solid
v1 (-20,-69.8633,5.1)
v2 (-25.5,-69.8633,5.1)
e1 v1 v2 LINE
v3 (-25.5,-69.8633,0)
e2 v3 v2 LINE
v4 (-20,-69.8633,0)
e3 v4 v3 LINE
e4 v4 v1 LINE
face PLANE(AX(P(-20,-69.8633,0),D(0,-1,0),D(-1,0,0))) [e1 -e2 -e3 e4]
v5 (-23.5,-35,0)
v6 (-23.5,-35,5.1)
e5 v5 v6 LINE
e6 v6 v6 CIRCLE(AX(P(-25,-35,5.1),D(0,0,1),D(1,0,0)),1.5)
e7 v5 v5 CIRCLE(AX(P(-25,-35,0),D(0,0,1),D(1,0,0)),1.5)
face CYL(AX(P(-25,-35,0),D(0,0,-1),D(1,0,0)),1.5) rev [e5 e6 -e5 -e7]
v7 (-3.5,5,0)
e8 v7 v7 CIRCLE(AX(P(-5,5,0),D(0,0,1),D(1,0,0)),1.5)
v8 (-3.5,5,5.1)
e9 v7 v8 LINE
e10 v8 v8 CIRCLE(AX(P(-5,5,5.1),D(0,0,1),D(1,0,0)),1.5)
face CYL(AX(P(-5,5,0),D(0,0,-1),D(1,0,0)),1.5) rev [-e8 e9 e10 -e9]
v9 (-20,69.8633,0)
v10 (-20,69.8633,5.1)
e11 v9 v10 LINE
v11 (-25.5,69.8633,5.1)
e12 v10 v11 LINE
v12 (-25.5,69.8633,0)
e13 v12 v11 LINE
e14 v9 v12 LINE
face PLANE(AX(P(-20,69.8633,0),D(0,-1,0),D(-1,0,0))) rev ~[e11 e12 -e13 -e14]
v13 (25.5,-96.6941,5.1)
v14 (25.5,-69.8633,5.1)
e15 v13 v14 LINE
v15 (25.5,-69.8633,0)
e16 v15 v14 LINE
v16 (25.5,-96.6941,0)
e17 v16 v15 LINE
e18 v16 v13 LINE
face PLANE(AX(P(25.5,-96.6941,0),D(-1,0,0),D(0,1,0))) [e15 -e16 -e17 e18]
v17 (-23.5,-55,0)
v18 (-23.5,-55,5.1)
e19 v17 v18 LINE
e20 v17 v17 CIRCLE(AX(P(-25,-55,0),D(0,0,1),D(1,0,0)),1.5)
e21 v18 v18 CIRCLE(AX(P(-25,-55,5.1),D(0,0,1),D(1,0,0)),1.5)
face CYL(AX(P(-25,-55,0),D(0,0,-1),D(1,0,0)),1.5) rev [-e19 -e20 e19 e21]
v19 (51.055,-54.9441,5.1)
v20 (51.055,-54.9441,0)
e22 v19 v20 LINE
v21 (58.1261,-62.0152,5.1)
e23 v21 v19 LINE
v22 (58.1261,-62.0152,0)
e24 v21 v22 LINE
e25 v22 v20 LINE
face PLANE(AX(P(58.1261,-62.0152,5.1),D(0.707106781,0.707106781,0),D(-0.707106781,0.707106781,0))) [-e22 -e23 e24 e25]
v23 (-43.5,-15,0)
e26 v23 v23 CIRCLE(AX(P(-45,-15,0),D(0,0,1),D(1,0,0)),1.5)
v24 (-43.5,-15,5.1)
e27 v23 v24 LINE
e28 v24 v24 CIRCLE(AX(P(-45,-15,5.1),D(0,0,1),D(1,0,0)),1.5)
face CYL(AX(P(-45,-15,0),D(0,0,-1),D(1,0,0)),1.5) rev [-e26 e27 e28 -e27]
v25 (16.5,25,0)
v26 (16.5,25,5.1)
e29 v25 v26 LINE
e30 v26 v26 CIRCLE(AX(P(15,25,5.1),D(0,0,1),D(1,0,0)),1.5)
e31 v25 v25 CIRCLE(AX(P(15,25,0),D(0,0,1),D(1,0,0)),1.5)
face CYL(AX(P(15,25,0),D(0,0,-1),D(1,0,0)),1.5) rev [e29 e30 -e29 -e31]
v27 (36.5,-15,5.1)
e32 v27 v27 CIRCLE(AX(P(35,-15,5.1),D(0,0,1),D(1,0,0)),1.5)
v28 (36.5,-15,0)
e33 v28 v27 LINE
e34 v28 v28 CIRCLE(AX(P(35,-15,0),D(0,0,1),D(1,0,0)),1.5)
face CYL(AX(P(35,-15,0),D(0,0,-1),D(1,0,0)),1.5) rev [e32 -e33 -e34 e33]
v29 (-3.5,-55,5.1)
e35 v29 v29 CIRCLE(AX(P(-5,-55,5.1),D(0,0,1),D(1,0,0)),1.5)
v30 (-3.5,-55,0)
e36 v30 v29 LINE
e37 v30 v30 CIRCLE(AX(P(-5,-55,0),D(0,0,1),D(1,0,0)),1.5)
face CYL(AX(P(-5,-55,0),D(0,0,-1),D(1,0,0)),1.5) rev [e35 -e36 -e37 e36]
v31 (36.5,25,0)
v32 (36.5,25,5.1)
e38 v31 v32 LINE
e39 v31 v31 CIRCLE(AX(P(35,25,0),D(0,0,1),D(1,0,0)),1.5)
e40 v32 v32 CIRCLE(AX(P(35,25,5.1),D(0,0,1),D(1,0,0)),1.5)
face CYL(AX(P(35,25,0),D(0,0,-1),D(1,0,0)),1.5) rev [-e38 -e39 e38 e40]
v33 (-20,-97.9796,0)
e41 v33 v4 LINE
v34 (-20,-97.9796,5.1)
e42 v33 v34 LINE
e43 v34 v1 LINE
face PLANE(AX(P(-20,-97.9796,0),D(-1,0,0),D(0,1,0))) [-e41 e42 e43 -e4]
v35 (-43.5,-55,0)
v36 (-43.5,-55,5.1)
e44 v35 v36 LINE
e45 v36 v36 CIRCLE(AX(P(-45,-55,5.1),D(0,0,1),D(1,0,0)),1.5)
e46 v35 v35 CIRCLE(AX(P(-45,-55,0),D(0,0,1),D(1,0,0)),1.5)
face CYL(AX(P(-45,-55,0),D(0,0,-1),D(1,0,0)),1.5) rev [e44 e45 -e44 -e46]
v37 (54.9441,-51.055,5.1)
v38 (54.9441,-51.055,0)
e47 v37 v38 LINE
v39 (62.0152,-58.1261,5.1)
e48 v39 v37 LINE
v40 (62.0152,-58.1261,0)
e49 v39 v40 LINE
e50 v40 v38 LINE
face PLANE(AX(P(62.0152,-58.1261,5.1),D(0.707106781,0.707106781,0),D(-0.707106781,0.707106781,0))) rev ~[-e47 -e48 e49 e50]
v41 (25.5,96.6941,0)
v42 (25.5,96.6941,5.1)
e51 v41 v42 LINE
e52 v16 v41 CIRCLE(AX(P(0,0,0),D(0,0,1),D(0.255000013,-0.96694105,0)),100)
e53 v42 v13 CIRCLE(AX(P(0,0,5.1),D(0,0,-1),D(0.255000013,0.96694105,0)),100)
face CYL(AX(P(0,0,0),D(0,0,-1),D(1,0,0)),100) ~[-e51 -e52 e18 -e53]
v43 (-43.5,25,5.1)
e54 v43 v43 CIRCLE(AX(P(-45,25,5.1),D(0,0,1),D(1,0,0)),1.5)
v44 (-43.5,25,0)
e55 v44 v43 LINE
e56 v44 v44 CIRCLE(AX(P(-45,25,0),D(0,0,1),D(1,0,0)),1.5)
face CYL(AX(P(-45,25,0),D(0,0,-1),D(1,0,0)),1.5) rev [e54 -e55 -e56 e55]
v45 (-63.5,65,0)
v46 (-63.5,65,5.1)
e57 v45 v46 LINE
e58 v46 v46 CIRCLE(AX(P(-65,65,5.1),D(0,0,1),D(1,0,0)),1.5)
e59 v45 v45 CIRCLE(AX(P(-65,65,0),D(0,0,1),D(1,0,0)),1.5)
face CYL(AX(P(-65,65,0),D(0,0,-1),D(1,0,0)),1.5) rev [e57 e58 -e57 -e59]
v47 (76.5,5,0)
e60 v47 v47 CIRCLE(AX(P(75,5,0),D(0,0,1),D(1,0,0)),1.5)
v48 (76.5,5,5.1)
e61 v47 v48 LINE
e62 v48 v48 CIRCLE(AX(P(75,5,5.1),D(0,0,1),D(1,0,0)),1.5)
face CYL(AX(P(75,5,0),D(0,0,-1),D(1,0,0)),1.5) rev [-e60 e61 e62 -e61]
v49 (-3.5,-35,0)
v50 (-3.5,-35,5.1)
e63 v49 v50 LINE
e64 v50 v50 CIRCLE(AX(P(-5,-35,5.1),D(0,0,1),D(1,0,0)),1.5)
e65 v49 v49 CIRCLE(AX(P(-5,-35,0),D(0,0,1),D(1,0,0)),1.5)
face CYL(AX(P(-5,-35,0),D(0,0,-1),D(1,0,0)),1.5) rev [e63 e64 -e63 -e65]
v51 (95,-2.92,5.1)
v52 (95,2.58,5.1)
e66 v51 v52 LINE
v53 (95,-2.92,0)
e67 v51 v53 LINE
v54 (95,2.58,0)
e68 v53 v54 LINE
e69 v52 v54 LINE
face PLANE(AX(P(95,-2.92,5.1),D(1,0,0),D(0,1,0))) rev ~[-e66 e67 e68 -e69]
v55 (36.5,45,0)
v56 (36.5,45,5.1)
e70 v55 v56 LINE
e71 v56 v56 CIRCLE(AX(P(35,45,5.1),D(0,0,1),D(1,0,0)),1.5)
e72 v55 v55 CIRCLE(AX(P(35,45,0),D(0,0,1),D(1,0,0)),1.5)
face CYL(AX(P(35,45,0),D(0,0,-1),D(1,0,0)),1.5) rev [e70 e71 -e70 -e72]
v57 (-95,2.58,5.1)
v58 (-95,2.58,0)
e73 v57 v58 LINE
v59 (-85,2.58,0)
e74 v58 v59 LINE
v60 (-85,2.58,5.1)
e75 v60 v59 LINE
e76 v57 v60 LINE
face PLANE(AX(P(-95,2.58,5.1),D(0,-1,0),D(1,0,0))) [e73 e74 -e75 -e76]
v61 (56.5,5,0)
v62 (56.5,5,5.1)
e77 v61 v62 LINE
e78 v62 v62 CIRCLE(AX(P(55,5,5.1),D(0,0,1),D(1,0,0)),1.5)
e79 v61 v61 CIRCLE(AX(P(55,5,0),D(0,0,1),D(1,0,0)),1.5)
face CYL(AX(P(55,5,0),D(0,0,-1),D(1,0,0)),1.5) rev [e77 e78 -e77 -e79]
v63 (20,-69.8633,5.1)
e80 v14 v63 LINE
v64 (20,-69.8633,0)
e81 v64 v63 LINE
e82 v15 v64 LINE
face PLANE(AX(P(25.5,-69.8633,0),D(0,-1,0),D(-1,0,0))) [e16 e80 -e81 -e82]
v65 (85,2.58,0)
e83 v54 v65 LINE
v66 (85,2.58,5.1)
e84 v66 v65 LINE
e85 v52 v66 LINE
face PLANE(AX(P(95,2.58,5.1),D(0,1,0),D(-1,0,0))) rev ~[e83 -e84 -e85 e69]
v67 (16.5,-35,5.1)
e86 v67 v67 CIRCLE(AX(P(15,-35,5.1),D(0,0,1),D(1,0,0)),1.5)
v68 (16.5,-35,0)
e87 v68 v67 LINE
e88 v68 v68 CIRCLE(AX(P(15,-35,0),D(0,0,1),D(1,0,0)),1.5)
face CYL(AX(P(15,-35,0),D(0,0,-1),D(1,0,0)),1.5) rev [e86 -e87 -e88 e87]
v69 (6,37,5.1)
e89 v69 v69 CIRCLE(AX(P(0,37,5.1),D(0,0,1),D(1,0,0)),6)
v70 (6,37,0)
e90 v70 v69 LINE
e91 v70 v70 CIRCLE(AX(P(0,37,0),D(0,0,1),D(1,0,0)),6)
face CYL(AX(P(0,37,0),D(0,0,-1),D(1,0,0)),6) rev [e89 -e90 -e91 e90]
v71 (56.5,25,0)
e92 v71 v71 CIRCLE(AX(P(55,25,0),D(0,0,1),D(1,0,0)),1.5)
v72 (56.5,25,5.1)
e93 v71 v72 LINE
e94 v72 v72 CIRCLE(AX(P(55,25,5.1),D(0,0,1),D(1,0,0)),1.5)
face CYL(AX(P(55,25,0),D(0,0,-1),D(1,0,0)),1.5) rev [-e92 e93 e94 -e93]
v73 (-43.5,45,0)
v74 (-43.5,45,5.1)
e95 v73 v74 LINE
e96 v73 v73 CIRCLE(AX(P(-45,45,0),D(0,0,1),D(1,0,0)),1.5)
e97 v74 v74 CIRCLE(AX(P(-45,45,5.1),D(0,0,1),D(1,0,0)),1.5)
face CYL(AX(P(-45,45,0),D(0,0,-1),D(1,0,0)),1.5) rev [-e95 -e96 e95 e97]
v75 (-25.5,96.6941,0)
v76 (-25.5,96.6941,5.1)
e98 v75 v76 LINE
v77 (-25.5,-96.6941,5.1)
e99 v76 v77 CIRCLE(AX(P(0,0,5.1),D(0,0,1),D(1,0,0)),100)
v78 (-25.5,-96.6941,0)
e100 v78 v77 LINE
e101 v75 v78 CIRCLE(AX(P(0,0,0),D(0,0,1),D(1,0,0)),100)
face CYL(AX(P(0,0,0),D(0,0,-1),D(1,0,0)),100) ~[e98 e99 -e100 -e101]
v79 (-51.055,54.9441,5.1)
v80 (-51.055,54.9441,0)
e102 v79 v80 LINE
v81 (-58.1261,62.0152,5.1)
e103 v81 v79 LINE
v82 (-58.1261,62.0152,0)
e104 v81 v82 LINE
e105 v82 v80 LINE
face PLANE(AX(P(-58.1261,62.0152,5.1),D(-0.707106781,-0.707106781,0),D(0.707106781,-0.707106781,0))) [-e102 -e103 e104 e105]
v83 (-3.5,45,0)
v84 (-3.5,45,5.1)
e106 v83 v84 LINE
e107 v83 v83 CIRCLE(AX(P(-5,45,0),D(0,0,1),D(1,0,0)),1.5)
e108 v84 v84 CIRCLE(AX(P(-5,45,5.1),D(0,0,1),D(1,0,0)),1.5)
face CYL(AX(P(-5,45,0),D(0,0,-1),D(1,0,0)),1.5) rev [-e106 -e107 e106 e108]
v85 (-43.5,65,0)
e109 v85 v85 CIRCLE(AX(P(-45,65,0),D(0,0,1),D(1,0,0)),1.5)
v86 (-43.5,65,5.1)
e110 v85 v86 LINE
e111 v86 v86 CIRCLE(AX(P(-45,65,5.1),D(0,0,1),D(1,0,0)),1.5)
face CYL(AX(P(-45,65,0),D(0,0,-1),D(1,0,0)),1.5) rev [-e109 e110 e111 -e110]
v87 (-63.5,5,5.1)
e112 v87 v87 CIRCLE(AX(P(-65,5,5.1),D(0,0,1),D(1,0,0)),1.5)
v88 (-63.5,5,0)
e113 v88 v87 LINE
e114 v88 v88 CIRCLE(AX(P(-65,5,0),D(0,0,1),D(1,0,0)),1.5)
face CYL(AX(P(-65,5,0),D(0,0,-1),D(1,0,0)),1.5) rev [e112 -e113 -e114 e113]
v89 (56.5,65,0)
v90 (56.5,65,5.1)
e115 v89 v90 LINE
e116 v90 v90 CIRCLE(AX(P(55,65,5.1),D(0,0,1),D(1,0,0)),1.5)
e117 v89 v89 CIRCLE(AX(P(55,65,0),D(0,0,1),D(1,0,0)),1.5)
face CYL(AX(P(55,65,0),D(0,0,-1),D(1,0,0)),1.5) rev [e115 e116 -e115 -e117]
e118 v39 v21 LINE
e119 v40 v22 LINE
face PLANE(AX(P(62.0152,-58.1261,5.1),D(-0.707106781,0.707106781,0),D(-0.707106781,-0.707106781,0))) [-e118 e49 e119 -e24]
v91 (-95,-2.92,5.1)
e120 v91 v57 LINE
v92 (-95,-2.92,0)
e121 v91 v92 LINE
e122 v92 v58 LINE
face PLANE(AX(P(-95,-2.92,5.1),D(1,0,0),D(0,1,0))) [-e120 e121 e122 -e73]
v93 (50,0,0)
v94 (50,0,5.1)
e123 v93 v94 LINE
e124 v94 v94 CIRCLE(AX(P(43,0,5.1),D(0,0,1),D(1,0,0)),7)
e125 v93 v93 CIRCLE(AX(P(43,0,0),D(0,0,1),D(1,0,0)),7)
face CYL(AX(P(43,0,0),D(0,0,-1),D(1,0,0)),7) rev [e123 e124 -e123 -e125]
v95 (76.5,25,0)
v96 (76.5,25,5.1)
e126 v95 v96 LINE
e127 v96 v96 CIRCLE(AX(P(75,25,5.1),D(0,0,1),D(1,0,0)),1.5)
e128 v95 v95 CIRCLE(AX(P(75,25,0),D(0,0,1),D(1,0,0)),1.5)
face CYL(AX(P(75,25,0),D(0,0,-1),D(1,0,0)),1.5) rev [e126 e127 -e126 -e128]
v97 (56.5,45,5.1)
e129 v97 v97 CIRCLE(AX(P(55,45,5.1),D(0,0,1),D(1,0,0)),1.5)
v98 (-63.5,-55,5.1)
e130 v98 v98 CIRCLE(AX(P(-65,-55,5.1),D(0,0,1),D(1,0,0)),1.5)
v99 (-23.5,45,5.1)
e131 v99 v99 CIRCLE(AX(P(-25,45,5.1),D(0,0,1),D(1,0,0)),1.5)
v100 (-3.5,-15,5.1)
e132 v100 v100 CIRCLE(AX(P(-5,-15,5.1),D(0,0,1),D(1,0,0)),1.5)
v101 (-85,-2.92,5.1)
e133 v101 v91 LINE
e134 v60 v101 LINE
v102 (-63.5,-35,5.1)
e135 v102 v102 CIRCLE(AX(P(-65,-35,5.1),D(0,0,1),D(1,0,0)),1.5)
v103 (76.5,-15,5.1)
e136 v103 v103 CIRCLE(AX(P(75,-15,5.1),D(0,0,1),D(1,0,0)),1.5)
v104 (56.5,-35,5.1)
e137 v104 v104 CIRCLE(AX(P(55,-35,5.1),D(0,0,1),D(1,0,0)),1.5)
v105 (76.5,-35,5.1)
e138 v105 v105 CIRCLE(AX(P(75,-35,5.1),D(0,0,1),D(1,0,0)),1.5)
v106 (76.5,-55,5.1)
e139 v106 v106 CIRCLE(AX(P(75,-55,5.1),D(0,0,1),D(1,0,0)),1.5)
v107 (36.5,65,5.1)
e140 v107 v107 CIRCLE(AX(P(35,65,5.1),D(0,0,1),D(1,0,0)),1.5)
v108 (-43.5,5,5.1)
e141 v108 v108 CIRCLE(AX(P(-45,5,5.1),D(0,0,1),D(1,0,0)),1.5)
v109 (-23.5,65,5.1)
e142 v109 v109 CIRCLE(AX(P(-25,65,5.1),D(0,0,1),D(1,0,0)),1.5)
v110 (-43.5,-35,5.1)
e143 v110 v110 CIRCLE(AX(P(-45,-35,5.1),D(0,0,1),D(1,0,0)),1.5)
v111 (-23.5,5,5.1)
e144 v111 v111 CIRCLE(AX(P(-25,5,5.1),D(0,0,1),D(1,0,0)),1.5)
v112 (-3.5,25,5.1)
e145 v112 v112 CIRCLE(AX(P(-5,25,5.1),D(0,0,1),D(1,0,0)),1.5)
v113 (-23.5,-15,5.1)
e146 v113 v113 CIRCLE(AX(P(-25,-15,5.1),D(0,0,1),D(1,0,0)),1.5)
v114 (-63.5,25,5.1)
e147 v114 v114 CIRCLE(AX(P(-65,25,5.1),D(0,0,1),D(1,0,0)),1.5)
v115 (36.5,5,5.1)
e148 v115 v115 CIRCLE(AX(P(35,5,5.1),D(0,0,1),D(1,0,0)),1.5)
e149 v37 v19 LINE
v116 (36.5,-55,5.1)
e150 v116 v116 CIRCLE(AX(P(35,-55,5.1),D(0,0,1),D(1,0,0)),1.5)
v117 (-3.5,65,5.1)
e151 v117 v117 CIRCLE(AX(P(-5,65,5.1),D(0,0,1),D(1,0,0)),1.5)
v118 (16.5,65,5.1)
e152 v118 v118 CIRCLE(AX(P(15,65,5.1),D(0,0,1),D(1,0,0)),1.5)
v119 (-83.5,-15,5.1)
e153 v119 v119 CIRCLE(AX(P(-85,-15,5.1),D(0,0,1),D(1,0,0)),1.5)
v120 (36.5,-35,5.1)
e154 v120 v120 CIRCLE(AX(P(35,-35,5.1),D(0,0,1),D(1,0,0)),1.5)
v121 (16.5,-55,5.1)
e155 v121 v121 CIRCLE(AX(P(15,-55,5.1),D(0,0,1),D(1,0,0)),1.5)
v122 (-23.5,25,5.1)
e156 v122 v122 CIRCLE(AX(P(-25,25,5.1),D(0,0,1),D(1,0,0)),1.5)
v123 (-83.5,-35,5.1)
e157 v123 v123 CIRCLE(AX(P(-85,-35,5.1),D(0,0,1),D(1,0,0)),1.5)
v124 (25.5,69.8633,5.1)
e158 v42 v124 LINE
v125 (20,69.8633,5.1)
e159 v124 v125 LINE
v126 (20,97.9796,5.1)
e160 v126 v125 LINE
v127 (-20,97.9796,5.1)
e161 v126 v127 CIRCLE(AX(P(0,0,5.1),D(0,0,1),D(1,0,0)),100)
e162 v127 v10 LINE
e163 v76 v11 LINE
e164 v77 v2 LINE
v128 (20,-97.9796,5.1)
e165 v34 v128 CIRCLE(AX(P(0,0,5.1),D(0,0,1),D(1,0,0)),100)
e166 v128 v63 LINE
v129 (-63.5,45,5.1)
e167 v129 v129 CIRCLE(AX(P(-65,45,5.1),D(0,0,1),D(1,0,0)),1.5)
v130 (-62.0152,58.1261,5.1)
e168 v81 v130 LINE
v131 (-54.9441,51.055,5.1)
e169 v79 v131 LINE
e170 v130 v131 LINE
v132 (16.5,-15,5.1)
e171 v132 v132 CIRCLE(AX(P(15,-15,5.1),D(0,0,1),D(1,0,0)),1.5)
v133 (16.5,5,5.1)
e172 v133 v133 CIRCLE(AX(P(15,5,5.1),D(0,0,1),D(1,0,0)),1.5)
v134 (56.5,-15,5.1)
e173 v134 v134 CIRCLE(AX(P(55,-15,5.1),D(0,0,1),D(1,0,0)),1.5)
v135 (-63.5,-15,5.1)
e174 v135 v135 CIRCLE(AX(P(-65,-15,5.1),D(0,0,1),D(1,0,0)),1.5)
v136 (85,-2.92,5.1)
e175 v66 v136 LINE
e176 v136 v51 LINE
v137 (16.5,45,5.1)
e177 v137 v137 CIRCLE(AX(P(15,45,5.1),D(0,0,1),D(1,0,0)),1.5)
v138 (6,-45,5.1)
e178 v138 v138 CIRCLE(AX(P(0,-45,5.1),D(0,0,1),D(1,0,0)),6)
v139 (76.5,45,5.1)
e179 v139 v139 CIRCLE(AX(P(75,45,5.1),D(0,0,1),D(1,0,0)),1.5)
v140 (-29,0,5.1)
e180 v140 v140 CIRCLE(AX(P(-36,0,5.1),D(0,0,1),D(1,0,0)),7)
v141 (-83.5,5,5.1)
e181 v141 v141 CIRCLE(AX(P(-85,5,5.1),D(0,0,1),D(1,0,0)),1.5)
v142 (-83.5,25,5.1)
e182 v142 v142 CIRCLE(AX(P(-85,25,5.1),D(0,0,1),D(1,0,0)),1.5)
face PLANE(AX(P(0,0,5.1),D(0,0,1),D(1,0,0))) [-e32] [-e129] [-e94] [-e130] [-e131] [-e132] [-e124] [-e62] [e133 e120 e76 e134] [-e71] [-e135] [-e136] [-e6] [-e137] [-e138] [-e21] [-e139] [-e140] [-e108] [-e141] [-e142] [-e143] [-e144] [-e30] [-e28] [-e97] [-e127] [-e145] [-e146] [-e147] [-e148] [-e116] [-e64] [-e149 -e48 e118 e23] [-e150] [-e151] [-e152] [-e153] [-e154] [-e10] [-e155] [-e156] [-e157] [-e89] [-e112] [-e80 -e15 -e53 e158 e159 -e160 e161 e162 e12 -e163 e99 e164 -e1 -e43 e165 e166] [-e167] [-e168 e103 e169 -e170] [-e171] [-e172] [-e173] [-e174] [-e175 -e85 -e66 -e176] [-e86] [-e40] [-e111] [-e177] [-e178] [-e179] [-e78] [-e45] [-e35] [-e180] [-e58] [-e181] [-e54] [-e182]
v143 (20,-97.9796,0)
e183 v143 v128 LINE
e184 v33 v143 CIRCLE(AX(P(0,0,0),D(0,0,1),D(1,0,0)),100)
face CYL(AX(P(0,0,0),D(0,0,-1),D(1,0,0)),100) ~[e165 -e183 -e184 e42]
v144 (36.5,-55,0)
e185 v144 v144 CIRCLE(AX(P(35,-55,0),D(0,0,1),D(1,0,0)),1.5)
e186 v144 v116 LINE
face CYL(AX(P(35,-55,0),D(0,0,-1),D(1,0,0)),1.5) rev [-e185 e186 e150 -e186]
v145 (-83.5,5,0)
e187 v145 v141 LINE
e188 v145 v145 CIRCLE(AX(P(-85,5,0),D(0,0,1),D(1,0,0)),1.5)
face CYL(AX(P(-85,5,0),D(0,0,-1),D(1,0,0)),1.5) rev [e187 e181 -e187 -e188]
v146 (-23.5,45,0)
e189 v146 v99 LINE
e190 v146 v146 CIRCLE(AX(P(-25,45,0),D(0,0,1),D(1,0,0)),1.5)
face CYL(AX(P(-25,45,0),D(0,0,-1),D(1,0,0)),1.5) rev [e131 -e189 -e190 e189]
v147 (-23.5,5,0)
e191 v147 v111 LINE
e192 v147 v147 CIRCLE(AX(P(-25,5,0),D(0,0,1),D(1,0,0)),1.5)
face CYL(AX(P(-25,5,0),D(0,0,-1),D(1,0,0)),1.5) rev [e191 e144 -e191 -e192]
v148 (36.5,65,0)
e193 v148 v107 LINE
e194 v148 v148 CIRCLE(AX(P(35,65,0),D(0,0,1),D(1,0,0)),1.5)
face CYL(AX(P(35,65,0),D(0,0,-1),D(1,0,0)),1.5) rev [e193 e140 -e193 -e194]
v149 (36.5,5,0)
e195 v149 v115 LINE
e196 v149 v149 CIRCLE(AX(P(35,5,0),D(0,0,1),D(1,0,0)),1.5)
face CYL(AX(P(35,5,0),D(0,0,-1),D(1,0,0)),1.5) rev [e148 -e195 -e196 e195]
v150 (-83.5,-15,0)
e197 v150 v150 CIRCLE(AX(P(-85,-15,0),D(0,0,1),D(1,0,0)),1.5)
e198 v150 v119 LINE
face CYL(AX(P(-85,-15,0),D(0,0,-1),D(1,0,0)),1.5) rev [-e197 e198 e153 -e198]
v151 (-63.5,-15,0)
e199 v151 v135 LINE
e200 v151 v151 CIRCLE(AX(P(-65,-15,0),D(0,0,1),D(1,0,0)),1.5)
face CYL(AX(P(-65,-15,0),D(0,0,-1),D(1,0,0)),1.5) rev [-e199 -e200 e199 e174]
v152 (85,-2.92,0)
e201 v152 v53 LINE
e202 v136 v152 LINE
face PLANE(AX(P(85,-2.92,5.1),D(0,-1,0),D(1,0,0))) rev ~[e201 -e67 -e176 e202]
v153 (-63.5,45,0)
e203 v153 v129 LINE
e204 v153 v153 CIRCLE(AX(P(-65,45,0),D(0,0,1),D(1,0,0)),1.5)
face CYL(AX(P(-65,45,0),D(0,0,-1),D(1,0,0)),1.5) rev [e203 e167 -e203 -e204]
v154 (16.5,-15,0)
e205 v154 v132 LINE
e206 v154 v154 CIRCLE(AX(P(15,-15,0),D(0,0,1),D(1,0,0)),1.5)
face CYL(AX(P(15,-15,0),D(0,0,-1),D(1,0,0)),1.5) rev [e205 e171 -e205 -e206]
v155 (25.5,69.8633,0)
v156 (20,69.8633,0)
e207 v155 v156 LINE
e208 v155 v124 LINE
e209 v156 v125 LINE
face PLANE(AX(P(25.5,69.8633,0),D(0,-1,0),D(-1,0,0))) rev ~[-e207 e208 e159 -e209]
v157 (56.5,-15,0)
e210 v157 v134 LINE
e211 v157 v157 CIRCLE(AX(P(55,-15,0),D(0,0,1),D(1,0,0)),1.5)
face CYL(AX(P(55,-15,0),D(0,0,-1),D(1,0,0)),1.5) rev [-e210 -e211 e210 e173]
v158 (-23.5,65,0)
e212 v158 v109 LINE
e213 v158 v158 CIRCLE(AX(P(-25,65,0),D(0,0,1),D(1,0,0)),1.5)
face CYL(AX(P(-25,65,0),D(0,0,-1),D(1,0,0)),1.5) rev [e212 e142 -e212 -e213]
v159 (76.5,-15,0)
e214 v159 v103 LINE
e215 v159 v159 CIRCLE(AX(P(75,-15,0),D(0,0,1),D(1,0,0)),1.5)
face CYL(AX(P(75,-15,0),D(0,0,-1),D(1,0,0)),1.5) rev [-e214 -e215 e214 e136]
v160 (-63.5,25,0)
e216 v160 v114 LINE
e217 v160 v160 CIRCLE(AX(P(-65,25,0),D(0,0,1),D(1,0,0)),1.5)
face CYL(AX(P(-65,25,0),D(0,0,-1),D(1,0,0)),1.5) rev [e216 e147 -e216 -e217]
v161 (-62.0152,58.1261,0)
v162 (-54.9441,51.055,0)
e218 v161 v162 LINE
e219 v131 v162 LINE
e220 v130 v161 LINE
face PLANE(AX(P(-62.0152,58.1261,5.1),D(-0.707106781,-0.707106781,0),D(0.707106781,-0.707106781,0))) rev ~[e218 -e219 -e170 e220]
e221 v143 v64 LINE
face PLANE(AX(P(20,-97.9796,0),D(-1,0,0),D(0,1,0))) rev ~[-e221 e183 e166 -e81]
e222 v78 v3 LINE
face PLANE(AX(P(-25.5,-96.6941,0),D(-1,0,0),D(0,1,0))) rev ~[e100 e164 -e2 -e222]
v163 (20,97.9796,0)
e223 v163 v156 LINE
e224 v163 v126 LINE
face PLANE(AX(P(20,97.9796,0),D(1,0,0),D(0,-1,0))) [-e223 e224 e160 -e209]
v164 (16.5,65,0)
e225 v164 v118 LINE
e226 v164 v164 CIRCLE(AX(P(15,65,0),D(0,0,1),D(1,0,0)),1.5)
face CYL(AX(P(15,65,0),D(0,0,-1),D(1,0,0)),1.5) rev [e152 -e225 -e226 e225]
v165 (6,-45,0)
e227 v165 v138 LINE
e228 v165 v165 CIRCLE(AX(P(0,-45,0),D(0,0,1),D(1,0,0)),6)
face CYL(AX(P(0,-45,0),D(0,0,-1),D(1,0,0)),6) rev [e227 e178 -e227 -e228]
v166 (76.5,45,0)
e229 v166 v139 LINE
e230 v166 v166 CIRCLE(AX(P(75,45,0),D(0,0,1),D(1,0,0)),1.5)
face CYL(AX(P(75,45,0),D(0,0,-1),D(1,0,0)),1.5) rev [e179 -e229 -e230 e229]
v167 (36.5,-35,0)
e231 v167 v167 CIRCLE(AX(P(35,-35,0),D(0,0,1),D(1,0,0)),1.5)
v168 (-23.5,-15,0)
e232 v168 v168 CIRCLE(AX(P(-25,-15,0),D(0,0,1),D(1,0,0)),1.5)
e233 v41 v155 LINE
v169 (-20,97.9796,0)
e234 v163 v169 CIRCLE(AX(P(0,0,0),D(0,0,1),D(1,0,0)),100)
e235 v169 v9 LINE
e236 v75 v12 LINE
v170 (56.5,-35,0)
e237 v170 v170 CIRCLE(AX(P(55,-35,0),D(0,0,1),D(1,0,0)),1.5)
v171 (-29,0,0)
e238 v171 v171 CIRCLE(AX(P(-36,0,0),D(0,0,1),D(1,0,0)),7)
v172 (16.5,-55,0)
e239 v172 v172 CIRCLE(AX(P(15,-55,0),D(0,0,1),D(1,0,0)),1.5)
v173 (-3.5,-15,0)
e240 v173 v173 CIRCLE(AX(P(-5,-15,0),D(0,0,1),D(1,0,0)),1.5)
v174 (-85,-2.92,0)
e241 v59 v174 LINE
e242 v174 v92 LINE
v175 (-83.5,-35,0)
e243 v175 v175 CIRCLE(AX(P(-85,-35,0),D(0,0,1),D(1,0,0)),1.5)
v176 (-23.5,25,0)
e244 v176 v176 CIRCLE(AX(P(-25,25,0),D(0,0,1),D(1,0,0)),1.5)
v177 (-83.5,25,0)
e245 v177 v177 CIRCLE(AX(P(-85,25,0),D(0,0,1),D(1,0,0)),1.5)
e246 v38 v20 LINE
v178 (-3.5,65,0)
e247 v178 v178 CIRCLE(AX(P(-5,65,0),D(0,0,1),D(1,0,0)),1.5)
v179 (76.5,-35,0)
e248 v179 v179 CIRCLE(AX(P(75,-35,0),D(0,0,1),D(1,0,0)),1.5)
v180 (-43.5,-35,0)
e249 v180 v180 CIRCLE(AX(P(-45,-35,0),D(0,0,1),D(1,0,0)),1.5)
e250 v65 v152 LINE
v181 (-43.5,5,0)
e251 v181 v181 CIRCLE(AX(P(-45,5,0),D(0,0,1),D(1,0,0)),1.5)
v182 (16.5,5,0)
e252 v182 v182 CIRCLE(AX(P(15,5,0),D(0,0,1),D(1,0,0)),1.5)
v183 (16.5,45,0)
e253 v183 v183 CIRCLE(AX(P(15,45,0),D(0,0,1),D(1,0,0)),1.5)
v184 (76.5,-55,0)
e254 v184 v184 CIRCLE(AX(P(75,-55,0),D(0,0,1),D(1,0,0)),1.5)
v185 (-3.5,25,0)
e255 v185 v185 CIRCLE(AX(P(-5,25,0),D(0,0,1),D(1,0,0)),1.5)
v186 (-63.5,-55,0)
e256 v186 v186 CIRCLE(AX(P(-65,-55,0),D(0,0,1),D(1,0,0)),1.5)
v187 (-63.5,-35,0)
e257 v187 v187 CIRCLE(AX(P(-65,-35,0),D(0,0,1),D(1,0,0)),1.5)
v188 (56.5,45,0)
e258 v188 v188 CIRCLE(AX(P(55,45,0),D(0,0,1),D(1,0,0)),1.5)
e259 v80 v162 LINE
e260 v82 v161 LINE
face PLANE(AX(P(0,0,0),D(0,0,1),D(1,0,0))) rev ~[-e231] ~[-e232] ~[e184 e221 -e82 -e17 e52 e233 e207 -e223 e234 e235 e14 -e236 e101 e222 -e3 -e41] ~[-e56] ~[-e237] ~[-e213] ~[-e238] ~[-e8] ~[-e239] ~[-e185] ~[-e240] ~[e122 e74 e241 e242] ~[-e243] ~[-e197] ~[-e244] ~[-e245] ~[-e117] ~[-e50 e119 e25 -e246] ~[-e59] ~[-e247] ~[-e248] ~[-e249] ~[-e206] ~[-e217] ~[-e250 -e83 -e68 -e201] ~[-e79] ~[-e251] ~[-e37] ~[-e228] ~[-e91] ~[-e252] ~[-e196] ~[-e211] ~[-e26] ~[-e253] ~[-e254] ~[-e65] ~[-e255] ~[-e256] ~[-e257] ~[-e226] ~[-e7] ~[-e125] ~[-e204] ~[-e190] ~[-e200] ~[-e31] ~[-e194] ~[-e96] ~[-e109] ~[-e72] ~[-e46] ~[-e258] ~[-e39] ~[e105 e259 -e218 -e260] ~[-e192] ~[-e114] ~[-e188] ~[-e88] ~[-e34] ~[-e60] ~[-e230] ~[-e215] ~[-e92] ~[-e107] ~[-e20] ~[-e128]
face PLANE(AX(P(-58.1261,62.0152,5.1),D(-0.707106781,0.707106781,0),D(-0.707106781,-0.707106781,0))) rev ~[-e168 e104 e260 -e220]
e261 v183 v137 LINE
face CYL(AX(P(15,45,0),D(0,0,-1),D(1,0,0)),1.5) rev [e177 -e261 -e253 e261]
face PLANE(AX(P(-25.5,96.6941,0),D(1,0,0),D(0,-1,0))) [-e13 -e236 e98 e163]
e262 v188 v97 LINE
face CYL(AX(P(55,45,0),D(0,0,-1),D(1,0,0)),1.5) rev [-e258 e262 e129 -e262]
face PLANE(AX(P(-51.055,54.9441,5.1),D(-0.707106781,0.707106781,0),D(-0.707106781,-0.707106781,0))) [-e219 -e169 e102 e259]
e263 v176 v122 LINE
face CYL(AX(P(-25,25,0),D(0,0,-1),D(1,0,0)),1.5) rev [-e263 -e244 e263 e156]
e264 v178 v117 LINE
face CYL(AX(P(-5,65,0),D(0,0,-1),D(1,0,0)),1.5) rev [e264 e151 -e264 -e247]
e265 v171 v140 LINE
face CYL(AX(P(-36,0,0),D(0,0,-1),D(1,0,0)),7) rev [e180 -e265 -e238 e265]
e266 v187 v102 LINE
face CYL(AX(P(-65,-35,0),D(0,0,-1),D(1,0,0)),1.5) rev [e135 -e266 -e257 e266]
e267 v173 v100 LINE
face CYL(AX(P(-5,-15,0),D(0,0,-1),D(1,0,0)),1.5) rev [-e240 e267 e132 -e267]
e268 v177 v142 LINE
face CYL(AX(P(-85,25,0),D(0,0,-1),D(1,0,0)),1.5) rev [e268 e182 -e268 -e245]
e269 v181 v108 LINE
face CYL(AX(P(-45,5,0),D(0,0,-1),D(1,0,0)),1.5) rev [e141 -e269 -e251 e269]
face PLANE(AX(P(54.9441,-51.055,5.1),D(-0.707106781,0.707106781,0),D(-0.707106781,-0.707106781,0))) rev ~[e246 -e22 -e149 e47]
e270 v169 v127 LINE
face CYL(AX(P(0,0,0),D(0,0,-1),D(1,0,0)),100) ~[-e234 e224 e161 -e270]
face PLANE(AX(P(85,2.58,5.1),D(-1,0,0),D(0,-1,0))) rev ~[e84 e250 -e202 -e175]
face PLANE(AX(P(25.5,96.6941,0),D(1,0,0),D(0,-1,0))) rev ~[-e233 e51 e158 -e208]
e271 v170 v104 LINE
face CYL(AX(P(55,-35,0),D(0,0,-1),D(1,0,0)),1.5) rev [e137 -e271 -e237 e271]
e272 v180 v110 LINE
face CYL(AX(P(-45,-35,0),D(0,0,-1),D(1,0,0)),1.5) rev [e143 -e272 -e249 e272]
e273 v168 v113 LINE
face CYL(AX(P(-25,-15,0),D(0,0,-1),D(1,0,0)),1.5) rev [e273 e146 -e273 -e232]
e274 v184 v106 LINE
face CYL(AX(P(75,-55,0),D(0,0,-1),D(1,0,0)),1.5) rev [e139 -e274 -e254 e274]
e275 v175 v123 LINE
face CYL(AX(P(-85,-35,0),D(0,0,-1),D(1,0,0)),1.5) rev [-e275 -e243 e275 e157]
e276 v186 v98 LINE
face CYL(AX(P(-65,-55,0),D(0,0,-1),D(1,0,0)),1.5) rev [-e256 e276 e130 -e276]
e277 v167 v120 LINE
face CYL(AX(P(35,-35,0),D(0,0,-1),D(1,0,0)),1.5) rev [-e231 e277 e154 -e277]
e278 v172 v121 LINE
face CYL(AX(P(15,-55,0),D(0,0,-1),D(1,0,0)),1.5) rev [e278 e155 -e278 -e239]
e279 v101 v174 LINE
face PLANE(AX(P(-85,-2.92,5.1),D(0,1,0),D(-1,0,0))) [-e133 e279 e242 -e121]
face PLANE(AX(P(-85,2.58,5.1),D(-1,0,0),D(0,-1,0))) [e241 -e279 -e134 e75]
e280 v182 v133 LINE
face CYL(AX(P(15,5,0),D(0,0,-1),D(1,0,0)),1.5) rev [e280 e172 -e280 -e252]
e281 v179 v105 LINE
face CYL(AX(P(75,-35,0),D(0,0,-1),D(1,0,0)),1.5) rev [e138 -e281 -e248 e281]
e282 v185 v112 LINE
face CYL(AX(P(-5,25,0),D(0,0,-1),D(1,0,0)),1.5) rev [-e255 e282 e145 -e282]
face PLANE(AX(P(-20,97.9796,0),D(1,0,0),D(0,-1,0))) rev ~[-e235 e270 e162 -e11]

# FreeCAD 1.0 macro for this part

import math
import FreeCAD as App
import Part
import Sketcher

V = App.Vector
Q = App.Units.Quantity


def add_polygon(sketch, points):
    """Adds a closed chain of lines whose ends are joined by coincident constraints."""
    first, n = sketch.GeometryCount, len(points)
    for a, b in zip(points, points[1:] + points[:1]):
        sketch.addGeometry(Part.LineSegment(App.Vector(*a, 0), App.Vector(*b, 0)), False)
    for i in range(n):
        sketch.addConstraint(Sketcher.Constraint("Coincident", first + i, 2, first + (i + 1) % n, 1))

doc = App.newDocument("Part")
body = doc.addObject("PartDesign::Body", "Body")

sketch1 = doc.addObject("Sketcher::SketchObject", "Sketch")
body.addObject(sketch1)
sketch1.AttachmentSupport = (doc.XY_Plane, [""])
sketch1.MapMode = "FlatFace"
sketch1.addGeometry([
    Part.ArcOfCircle(Part.Circle(V(0, 0, 0), V(0, 0, 1), 100), math.radians(-75), math.radians(75)),
    Part.LineSegment(V(25.5, 96.7, 0), V(25.5, 69.9, 0)),
    Part.LineSegment(V(25.5, 69.9, 0), V(20, 69.9, 0)),
    Part.LineSegment(V(20, 69.9, 0), V(20, 98, 0)),
    Part.ArcOfCircle(Part.Circle(V(0, 0, 0), V(0, 0, 1), 100), math.radians(78), math.radians(102)),
    Part.LineSegment(V(-20, 98, 0), V(-20, 69.9, 0)),
    Part.LineSegment(V(-20, 69.9, 0), V(-25.5, 69.9, 0)),
    Part.LineSegment(V(-25.5, 69.9, 0), V(-25.5, 96.7, 0)),
    Part.ArcOfCircle(Part.Circle(V(0, 0, 0), V(0, 0, 1), 100), math.radians(105), math.radians(255)),
    Part.LineSegment(V(-25.5, -96.7, 0), V(-25.5, -69.9, 0)),
    Part.LineSegment(V(-25.5, -69.9, 0), V(-20, -69.9, 0)),
    Part.LineSegment(V(-20, -69.9, 0), V(-20, -98, 0)),
    Part.ArcOfCircle(Part.Circle(V(0, 0, 0), V(0, 0, 1), 100), math.radians(-102), math.radians(-78)),
    Part.LineSegment(V(20, -98, 0), V(20, -69.9, 0)),
    Part.LineSegment(V(20, -69.9, 0), V(25.5, -69.9, 0)),
    Part.LineSegment(V(25.5, -69.9, 0), V(25.5, -96.7, 0)),
    Part.Circle(V(-65, -55, 0), V(0, 0, 1), 1.5),
    Part.Circle(V(-45, -55, 0), V(0, 0, 1), 1.5),
    Part.Circle(V(-25, -55, 0), V(0, 0, 1), 1.5),
    Part.Circle(V(-5, -55, 0), V(0, 0, 1), 1.5),
    Part.Circle(V(-85, -35, 0), V(0, 0, 1), 1.5),
    Part.Circle(V(-65, -35, 0), V(0, 0, 1), 1.5),
    Part.Circle(V(-85, -15, 0), V(0, 0, 1), 1.5),
    Part.Circle(V(-65, -15, 0), V(0, 0, 1), 1.5),
    Part.Circle(V(-45, -35, 0), V(0, 0, 1), 1.5),
    Part.Circle(V(-25, -35, 0), V(0, 0, 1), 1.5),
    Part.Circle(V(-5, -35, 0), V(0, 0, 1), 1.5),
    Part.Circle(V(-45, -15, 0), V(0, 0, 1), 1.5),
    Part.Circle(V(-25, -15, 0), V(0, 0, 1), 1.5),
    Part.Circle(V(-5, -15, 0), V(0, 0, 1), 1.5),
    Part.Circle(V(15, -55, 0), V(0, 0, 1), 1.5),
    Part.Circle(V(35, -55, 0), V(0, 0, 1), 1.5),
    Part.Circle(V(55, -55, 0), V(0, 0, 1), 1.5),
    Part.Circle(V(75, -55, 0), V(0, 0, 1), 1.5),
    Part.Circle(V(0, -45, 0), V(0, 0, 1), 6),
    Part.Circle(V(15, -35, 0), V(0, 0, 1), 1.5),
    Part.Circle(V(35, -35, 0), V(0, 0, 1), 1.5),
    Part.Circle(V(15, -15, 0), V(0, 0, 1), 1.5),
    Part.Circle(V(35, -15, 0), V(0, 0, 1), 1.5),
    Part.Circle(V(55, -35, 0), V(0, 0, 1), 1.5),
    Part.Circle(V(75, -35, 0), V(0, 0, 1), 1.5),
    Part.Circle(V(55, -15, 0), V(0, 0, 1), 1.5),
    Part.Circle(V(75, -15, 0), V(0, 0, 1), 1.5),
    Part.Circle(V(-85, 5, 0), V(0, 0, 1), 1.5),
    Part.Circle(V(-65, 5, 0), V(0, 0, 1), 1.5),
    Part.Circle(V(-85, 25, 0), V(0, 0, 1), 1.5),
    Part.Circle(V(-65, 25, 0), V(0, 0, 1), 1.5),
    Part.Circle(V(-65, 45, 0), V(0, 0, 1), 1.5),
    Part.Circle(V(-45, 5, 0), V(0, 0, 1), 1.5),
    Part.Circle(V(-36, 0, 0), V(0, 0, 1), 7),
    Part.Circle(V(-25, 5, 0), V(0, 0, 1), 1.5),
    Part.Circle(V(-5, 5, 0), V(0, 0, 1), 1.5),
    Part.Circle(V(-45, 25, 0), V(0, 0, 1), 1.5),
    Part.Circle(V(-45, 45, 0), V(0, 0, 1), 1.5),
    Part.Circle(V(-25, 25, 0), V(0, 0, 1), 1.5),
    Part.Circle(V(-5, 25, 0), V(0, 0, 1), 1.5),
    Part.Circle(V(-25, 45, 0), V(0, 0, 1), 1.5),
    Part.Circle(V(-5, 45, 0), V(0, 0, 1), 1.5),
    Part.Circle(V(-65, 65, 0), V(0, 0, 1), 1.5),
    Part.Circle(V(-45, 65, 0), V(0, 0, 1), 1.5),
    Part.Circle(V(-25, 65, 0), V(0, 0, 1), 1.5),
    Part.Circle(V(-5, 65, 0), V(0, 0, 1), 1.5),
    Part.Circle(V(15, 5, 0), V(0, 0, 1), 1.5),
    Part.Circle(V(35, 5, 0), V(0, 0, 1), 1.5),
    Part.Circle(V(43, 0, 0), V(0, 0, 1), 7),
    Part.Circle(V(0, 37, 0), V(0, 0, 1), 6),
    Part.Circle(V(15, 25, 0), V(0, 0, 1), 1.5),
    Part.Circle(V(15, 45, 0), V(0, 0, 1), 1.5),
    Part.Circle(V(35, 25, 0), V(0, 0, 1), 1.5),
    Part.Circle(V(35, 45, 0), V(0, 0, 1), 1.5),
    Part.Circle(V(55, 5, 0), V(0, 0, 1), 1.5),
    Part.Circle(V(75, 5, 0), V(0, 0, 1), 1.5),
    Part.Circle(V(55, 25, 0), V(0, 0, 1), 1.5),
    Part.Circle(V(55, 45, 0), V(0, 0, 1), 1.5),
    Part.Circle(V(75, 25, 0), V(0, 0, 1), 1.5),
    Part.Circle(V(75, 45, 0), V(0, 0, 1), 1.5),
    Part.Circle(V(15, 65, 0), V(0, 0, 1), 1.5),
    Part.Circle(V(35, 65, 0), V(0, 0, 1), 1.5),
    Part.Circle(V(55, 65, 0), V(0, 0, 1), 1.5),
], False)
sketch1.addConstraint([
    Sketcher.Constraint("Coincident", 0, 2, 1, 1),
    Sketcher.Constraint("Coincident", 1, 2, 2, 1),
    Sketcher.Constraint("Coincident", 2, 2, 3, 1),
    Sketcher.Constraint("Coincident", 3, 2, 4, 1),
    Sketcher.Constraint("Coincident", 4, 2, 5, 1),
    Sketcher.Constraint("Coincident", 5, 2, 6, 1),
    Sketcher.Constraint("Coincident", 6, 2, 7, 1),
    Sketcher.Constraint("Coincident", 7, 2, 8, 1),
    Sketcher.Constraint("Coincident", 8, 2, 9, 1),
    Sketcher.Constraint("Coincident", 9, 2, 10, 1),
    Sketcher.Constraint("Coincident", 10, 2, 11, 1),
    Sketcher.Constraint("Coincident", 11, 2, 12, 1),
    Sketcher.Constraint("Coincident", 12, 2, 13, 1),
    Sketcher.Constraint("Coincident", 13, 2, 14, 1),
    Sketcher.Constraint("Coincident", 14, 2, 15, 1),
    Sketcher.Constraint("Coincident", 15, 2, 0, 1),
    Sketcher.Constraint("Vertical", 1),
    Sketcher.Constraint("Horizontal", 2),
    Sketcher.Constraint("Vertical", 3),
    Sketcher.Constraint("Vertical", 5),
    Sketcher.Constraint("Horizontal", 6),
    Sketcher.Constraint("Vertical", 7),
    Sketcher.Constraint("Vertical", 9),
    Sketcher.Constraint("Horizontal", 10),
    Sketcher.Constraint("Vertical", 11),
    Sketcher.Constraint("Vertical", 13),
    Sketcher.Constraint("Horizontal", 14),
    Sketcher.Constraint("Vertical", 15),
    Sketcher.Constraint("Coincident", 0, 3, -1, 1),
    Sketcher.Constraint("Coincident", 4, 3, -1, 1),
    Sketcher.Constraint("Coincident", 8, 3, -1, 1),
    Sketcher.Constraint("Coincident", 12, 3, -1, 1),
    Sketcher.Constraint("Equal", 0, 4),
    Sketcher.Constraint("Equal", 4, 8),
    Sketcher.Constraint("Equal", 8, 12),
    Sketcher.Constraint("Equal", 16, 17),
    Sketcher.Constraint("Equal", 17, 18),
    Sketcher.Constraint("Equal", 18, 19),
    Sketcher.Constraint("Equal", 19, 20),
    Sketcher.Constraint("Equal", 20, 21),
    Sketcher.Constraint("Equal", 21, 22),
    Sketcher.Constraint("Equal", 22, 23),
    Sketcher.Constraint("Equal", 23, 24),
    Sketcher.Constraint("Equal", 24, 25),
    Sketcher.Constraint("Equal", 25, 26),
    Sketcher.Constraint("Equal", 26, 27),
    Sketcher.Constraint("Equal", 27, 28),
    Sketcher.Constraint("Equal", 28, 29),
    Sketcher.Constraint("Equal", 29, 30),
    Sketcher.Constraint("Equal", 30, 31),
    Sketcher.Constraint("Equal", 31, 32),
    Sketcher.Constraint("Equal", 32, 33),
    Sketcher.Constraint("Equal", 33, 35),
    Sketcher.Constraint("Equal", 35, 36),
    Sketcher.Constraint("Equal", 36, 37),
    Sketcher.Constraint("Equal", 37, 38),
    Sketcher.Constraint("Equal", 38, 39),
    Sketcher.Constraint("Equal", 39, 40),
    Sketcher.Constraint("Equal", 40, 41),
    Sketcher.Constraint("Equal", 41, 42),
    Sketcher.Constraint("Equal", 42, 43),
    Sketcher.Constraint("Equal", 43, 44),
    Sketcher.Constraint("Equal", 44, 45),
    Sketcher.Constraint("Equal", 45, 46),
    Sketcher.Constraint("Equal", 46, 47),
    Sketcher.Constraint("Equal", 47, 48),
    Sketcher.Constraint("Equal", 48, 50),
    Sketcher.Constraint("Equal", 50, 51),
    Sketcher.Constraint("Equal", 51, 52),
    Sketcher.Constraint("Equal", 52, 53),
    Sketcher.Constraint("Equal", 53, 54),
    Sketcher.Constraint("Equal", 54, 55),
    Sketcher.Constraint("Equal", 55, 56),
    Sketcher.Constraint("Equal", 56, 57),
    Sketcher.Constraint("Equal", 57, 58),
    Sketcher.Constraint("Equal", 58, 59),
    Sketcher.Constraint("Equal", 59, 60),
    Sketcher.Constraint("Equal", 60, 61),
    Sketcher.Constraint("Equal", 61, 62),
    Sketcher.Constraint("Equal", 62, 63),
    Sketcher.Constraint("Equal", 49, 64),
    Sketcher.Constraint("Equal", 34, 65),
    Sketcher.Constraint("Equal", 63, 66),
    Sketcher.Constraint("Equal", 66, 67),
    Sketcher.Constraint("Equal", 67, 68),
    Sketcher.Constraint("Equal", 68, 69),
    Sketcher.Constraint("Equal", 69, 70),
    Sketcher.Constraint("Equal", 70, 71),
    Sketcher.Constraint("Equal", 71, 72),
    Sketcher.Constraint("Equal", 72, 73),
    Sketcher.Constraint("Equal", 73, 74),
    Sketcher.Constraint("Equal", 74, 75),
    Sketcher.Constraint("Equal", 75, 76),
    Sketcher.Constraint("Equal", 76, 77),
    Sketcher.Constraint("Equal", 77, 78),
    Sketcher.Constraint("Symmetric", 1, 2, 9, 2, -1, 1),
    Sketcher.Constraint("Symmetric", 5, 2, 13, 2, -1, 1),
    Sketcher.Constraint("Symmetric", 2, 2, 5, 2, -2),
    Sketcher.Constraint("PointOnObject", 34, 3, -2),
    Sketcher.Constraint("PointOnObject", 49, 3, -1),
    Sketcher.Constraint("PointOnObject", 64, 3, -1),
    Sketcher.Constraint("PointOnObject", 65, 3, -2),
    Sketcher.Constraint("Horizontal", 16, 3, 17, 3),
    Sketcher.Constraint("Horizontal", 17, 3, 18, 3),
    Sketcher.Constraint("Horizontal", 18, 3, 19, 3),
    Sketcher.Constraint("Horizontal", 20, 3, 21, 3),
    Sketcher.Constraint("Horizontal", 22, 3, 23, 3),
    Sketcher.Constraint("Horizontal", 21, 3, 24, 3),
    Sketcher.Constraint("Horizontal", 24, 3, 25, 3),
    Sketcher.Constraint("Horizontal", 25, 3, 26, 3),
    Sketcher.Constraint("Horizontal", 23, 3, 27, 3),
    Sketcher.Constraint("Horizontal", 27, 3, 28, 3),
    Sketcher.Constraint("Horizontal", 28, 3, 29, 3),
    Sketcher.Constraint("Horizontal", 19, 3, 30, 3),
    Sketcher.Constraint("Horizontal", 30, 3, 31, 3),
    Sketcher.Constraint("Horizontal", 31, 3, 32, 3),
    Sketcher.Constraint("Horizontal", 32, 3, 33, 3),
    Sketcher.Constraint("Horizontal", 26, 3, 35, 3),
    Sketcher.Constraint("Horizontal", 35, 3, 36, 3),
    Sketcher.Constraint("Horizontal", 29, 3, 37, 3),
    Sketcher.Constraint("Horizontal", 37, 3, 38, 3),
    Sketcher.Constraint("Horizontal", 36, 3, 39, 3),
    Sketcher.Constraint("Horizontal", 39, 3, 40, 3),
    Sketcher.Constraint("Horizontal", 38, 3, 41, 3),
    Sketcher.Constraint("Horizontal", 41, 3, 42, 3),
    Sketcher.Constraint("Horizontal", 43, 3, 44, 3),
    Sketcher.Constraint("Horizontal", 45, 3, 46, 3),
    Sketcher.Constraint("Horizontal", 44, 3, 48, 3),
    Sketcher.Constraint("Horizontal", 48, 3, 50, 3),
    Sketcher.Constraint("Horizontal", 50, 3, 51, 3),
    Sketcher.Constraint("Horizontal", 46, 3, 52, 3),
    Sketcher.Constraint("Horizontal", 47, 3, 53, 3),
    Sketcher.Constraint("Horizontal", 52, 3, 54, 3),
    Sketcher.Constraint("Horizontal", 54, 3, 55, 3),
    Sketcher.Constraint("Horizontal", 53, 3, 56, 3),
    Sketcher.Constraint("Horizontal", 56, 3, 57, 3),
    Sketcher.Constraint("Horizontal", 58, 3, 59, 3),
    Sketcher.Constraint("Horizontal", 59, 3, 60, 3),
    Sketcher.Constraint("Horizontal", 60, 3, 61, 3),
    Sketcher.Constraint("Horizontal", 51, 3, 62, 3),
    Sketcher.Constraint("Horizontal", 62, 3, 63, 3),
    Sketcher.Constraint("Horizontal", 55, 3, 66, 3),
    Sketcher.Constraint("Horizontal", 57, 3, 67, 3),
    Sketcher.Constraint("Horizontal", 66, 3, 68, 3),
    Sketcher.Constraint("Horizontal", 67, 3, 69, 3),
    Sketcher.Constraint("Horizontal", 63, 3, 70, 3),
    Sketcher.Constraint("Horizontal", 70, 3, 71, 3),
    Sketcher.Constraint("Horizontal", 68, 3, 72, 3),
    Sketcher.Constraint("Horizontal", 69, 3, 73, 3),
    Sketcher.Constraint("Horizontal", 72, 3, 74, 3),
    Sketcher.Constraint("Horizontal", 73, 3, 75, 3),
    Sketcher.Constraint("Horizontal", 61, 3, 76, 3),
    Sketcher.Constraint("Horizontal", 76, 3, 77, 3),
    Sketcher.Constraint("Horizontal", 77, 3, 78, 3),
    Sketcher.Constraint("Horizontal", 0, 2, 7, 2),
    Sketcher.Constraint("Horizontal", 11, 2, 12, 2),
    Sketcher.Constraint("Horizontal", 8, 2, 15, 2),
    Sketcher.Constraint("Vertical", 16, 3, 21, 3),
    Sketcher.Constraint("Vertical", 20, 3, 22, 3),
    Sketcher.Constraint("Vertical", 21, 3, 23, 3),
    Sketcher.Constraint("Vertical", 17, 3, 24, 3),
    Sketcher.Constraint("Vertical", 18, 3, 25, 3),
    Sketcher.Constraint("Vertical", 19, 3, 26, 3),
    Sketcher.Constraint("Vertical", 24, 3, 27, 3),
    Sketcher.Constraint("Vertical", 25, 3, 28, 3),
    Sketcher.Constraint("Vertical", 26, 3, 29, 3),
    Sketcher.Constraint("Vertical", 30, 3, 35, 3),
    Sketcher.Constraint("Vertical", 31, 3, 36, 3),
    Sketcher.Constraint("Vertical", 35, 3, 37, 3),
    Sketcher.Constraint("Vertical", 36, 3, 38, 3),
    Sketcher.Constraint("Vertical", 32, 3, 39, 3),
    Sketcher.Constraint("Vertical", 33, 3, 40, 3),
    Sketcher.Constraint("Vertical", 39, 3, 41, 3),
    Sketcher.Constraint("Vertical", 40, 3, 42, 3),
    Sketcher.Constraint("Vertical", 22, 3, 43, 3),
    Sketcher.Constraint("Vertical", 23, 3, 44, 3),
    Sketcher.Constraint("Vertical", 43, 3, 45, 3),
    Sketcher.Constraint("Vertical", 44, 3, 46, 3),
    Sketcher.Constraint("Vertical", 46, 3, 47, 3),
    Sketcher.Constraint("Vertical", 27, 3, 48, 3),
    Sketcher.Constraint("Vertical", 28, 3, 50, 3),
    Sketcher.Constraint("Vertical", 29, 3, 51, 3),
    Sketcher.Constraint("Vertical", 48, 3, 52, 3),
    Sketcher.Constraint("Vertical", 52, 3, 53, 3),
    Sketcher.Constraint("Vertical", 50, 3, 54, 3),
    Sketcher.Constraint("Vertical", 51, 3, 55, 3),
    Sketcher.Constraint("Vertical", 54, 3, 56, 3),
    Sketcher.Constraint("Vertical", 55, 3, 57, 3),
    Sketcher.Constraint("Vertical", 47, 3, 58, 3),
    Sketcher.Constraint("Vertical", 53, 3, 59, 3),
    Sketcher.Constraint("Vertical", 56, 3, 60, 3),
    Sketcher.Constraint("Vertical", 57, 3, 61, 3),
    Sketcher.Constraint("Vertical", 37, 3, 62, 3),
    Sketcher.Constraint("Vertical", 38, 3, 63, 3),
    Sketcher.Constraint("Vertical", 62, 3, 66, 3),
    Sketcher.Constraint("Vertical", 66, 3, 67, 3),
    Sketcher.Constraint("Vertical", 63, 3, 68, 3),
    Sketcher.Constraint("Vertical", 68, 3, 69, 3),
    Sketcher.Constraint("Vertical", 41, 3, 70, 3),
    Sketcher.Constraint("Vertical", 42, 3, 71, 3),
    Sketcher.Constraint("Vertical", 70, 3, 72, 3),
    Sketcher.Constraint("Vertical", 72, 3, 73, 3),
    Sketcher.Constraint("Vertical", 71, 3, 74, 3),
    Sketcher.Constraint("Vertical", 74, 3, 75, 3),
    Sketcher.Constraint("Vertical", 67, 3, 76, 3),
    Sketcher.Constraint("Vertical", 69, 3, 77, 3),
    Sketcher.Constraint("Vertical", 73, 3, 78, 3),
    Sketcher.Constraint("Diameter", 16, Q("3 mm")),
    Sketcher.Constraint("Diameter", 34, Q("12 mm")),
    Sketcher.Constraint("Diameter", 49, Q("14 mm")),
    Sketcher.Constraint("Radius", 0, Q("100 mm")),
    Sketcher.Constraint("DistanceX", 2, 2, 2, 1, Q("5.5 mm")),
    Sketcher.Constraint("DistanceX", -1, 1, 64, 3, Q("43 mm")),
    Sketcher.Constraint("DistanceY", -1, 1, 65, 3, Q("37 mm")),
    Sketcher.Constraint("DistanceX", -1, 1, 2, 2, Q("20 mm")),
    Sketcher.Constraint("DistanceX", 16, 3, -1, 1, Q("65 mm")),
    Sketcher.Constraint("DistanceY", 16, 3, -1, 1, Q("55 mm")),
    Sketcher.Constraint("DistanceX", 17, 3, -1, 1, Q("45 mm")),
    Sketcher.Constraint("DistanceX", 18, 3, -1, 1, Q("25 mm")),
    Sketcher.Constraint("DistanceX", 19, 3, -1, 1, Q("5 mm")),
    Sketcher.Constraint("DistanceX", 20, 3, -1, 1, Q("85 mm")),
    Sketcher.Constraint("DistanceY", 20, 3, -1, 1, Q("35 mm")),
    Sketcher.Constraint("DistanceY", 22, 3, -1, 1, Q("15 mm")),
    Sketcher.Constraint("DistanceX", -1, 1, 30, 3, Q("15 mm")),
    Sketcher.Constraint("DistanceX", -1, 1, 31, 3, Q("35 mm")),
    Sketcher.Constraint("DistanceX", -1, 1, 32, 3, Q("55 mm")),
    Sketcher.Constraint("DistanceX", -1, 1, 33, 3, Q("75 mm")),
    Sketcher.Constraint("DistanceY", 34, 3, -1, 1, Q("45 mm")),
    Sketcher.Constraint("DistanceY", -1, 1, 43, 3, Q("5 mm")),
    Sketcher.Constraint("DistanceY", -1, 1, 45, 3, Q("25 mm")),
    Sketcher.Constraint("DistanceY", -1, 1, 47, 3, Q("45 mm")),
    Sketcher.Constraint("DistanceX", 49, 3, -1, 1, Q("36 mm")),
    Sketcher.Constraint("DistanceY", -1, 1, 58, 3, Q("65 mm")),
    Sketcher.Constraint("DistanceY", -1, 1, 1, 2, Q("69.8633 mm")),
])
pad1 = doc.addObject("PartDesign::Pad", "Pad")
body.addObject(pad1)
pad1.Profile = sketch1
pad1.Length = 5.1

sketch2 = doc.addObject("Sketcher::SketchObject", "Sketch001")
body.addObject(sketch2)
sketch2.AttachmentSupport = (doc.XY_Plane, [""])
sketch2.MapMode = "FlatFace"
sketch2.AttachmentOffset = App.Placement(V(0, 0, 5.1), App.Rotation())
add_polygon(sketch2, [(-95, -3), (-85, -3), (-85, 3), (-95, 3)])
add_polygon(sketch2, [(85, 3), (85, -3), (95, -3), (95, 3)])
sketch2.addConstraint([
    Sketcher.Constraint("Horizontal", 0),
    Sketcher.Constraint("Vertical", 1),
    Sketcher.Constraint("Horizontal", 2),
    Sketcher.Constraint("Vertical", 3),
    Sketcher.Constraint("Vertical", 4),
    Sketcher.Constraint("Horizontal", 5),
    Sketcher.Constraint("Vertical", 6),
    Sketcher.Constraint("Horizontal", 7),
    Sketcher.Constraint("Symmetric", 0, 2, 4, 2, -2),
    Sketcher.Constraint("Symmetric", 2, 2, 6, 2, -2),
    Sketcher.Constraint("DistanceX", 0, 1, 0, 2, Q("10 mm")),
    Sketcher.Constraint("DistanceY", 1, 1, 1, 2, Q("5.5 mm")),
    Sketcher.Constraint("DistanceX", 0, 2, -1, 1, Q("85 mm")),
    Sketcher.Constraint("DistanceY", 0, 2, -1, 1, Q("2.92 mm")),
])
pocket1 = doc.addObject("PartDesign::Pocket", "Pocket")
body.addObject(pocket1)
pocket1.Profile = sketch2
pocket1.Length = 10

sketch3 = doc.addObject("Sketcher::SketchObject", "Sketch002")
body.addObject(sketch3)
sketch3.AttachmentSupport = (doc.XY_Plane, [""])
sketch3.MapMode = "FlatFace"
sketch3.AttachmentOffset = App.Placement(V(0, 0, 5.1), App.Rotation())
add_polygon(sketch3, [(-58, 62), (-62, 58), (-55, 51), (-51, 55)])
add_polygon(sketch3, [(51, -55), (58, -62), (62, -58), (55, -51)])
sketch3.addConstraint([
    Sketcher.Constraint("Symmetric", 3, 2, 4, 2, -1, 1),
    Sketcher.Constraint("Symmetric", 0, 2, 5, 2, -1, 1),
    Sketcher.Constraint("Symmetric", 1, 2, 6, 2, -1, 1),
    Sketcher.Constraint("Symmetric", 2, 2, 7, 2, -1, 1),
    Sketcher.Constraint("Perpendicular", 0, 1),
    Sketcher.Constraint("Perpendicular", 1, 2),
    Sketcher.Constraint("Perpendicular", 2, 3),
    Sketcher.Constraint("Angle", 1, Q("-45 deg")),
    Sketcher.Constraint("Distance", 1, Q("10 mm")),
    Sketcher.Constraint("Distance", 0, Q("5.5 mm")),
    Sketcher.Constraint("DistanceY", 6, 2, 1, 2, Q("102.11 mm")),
    Sketcher.Constraint("DistanceX", 2, 2, 7, 2, Q("102.11 mm")),
])
pocket2 = doc.addObject("PartDesign::Pocket", "Pocket001")
body.addObject(pocket2)
pocket2.Profile = sketch3
pocket2.Length = 10

doc.recompute()
